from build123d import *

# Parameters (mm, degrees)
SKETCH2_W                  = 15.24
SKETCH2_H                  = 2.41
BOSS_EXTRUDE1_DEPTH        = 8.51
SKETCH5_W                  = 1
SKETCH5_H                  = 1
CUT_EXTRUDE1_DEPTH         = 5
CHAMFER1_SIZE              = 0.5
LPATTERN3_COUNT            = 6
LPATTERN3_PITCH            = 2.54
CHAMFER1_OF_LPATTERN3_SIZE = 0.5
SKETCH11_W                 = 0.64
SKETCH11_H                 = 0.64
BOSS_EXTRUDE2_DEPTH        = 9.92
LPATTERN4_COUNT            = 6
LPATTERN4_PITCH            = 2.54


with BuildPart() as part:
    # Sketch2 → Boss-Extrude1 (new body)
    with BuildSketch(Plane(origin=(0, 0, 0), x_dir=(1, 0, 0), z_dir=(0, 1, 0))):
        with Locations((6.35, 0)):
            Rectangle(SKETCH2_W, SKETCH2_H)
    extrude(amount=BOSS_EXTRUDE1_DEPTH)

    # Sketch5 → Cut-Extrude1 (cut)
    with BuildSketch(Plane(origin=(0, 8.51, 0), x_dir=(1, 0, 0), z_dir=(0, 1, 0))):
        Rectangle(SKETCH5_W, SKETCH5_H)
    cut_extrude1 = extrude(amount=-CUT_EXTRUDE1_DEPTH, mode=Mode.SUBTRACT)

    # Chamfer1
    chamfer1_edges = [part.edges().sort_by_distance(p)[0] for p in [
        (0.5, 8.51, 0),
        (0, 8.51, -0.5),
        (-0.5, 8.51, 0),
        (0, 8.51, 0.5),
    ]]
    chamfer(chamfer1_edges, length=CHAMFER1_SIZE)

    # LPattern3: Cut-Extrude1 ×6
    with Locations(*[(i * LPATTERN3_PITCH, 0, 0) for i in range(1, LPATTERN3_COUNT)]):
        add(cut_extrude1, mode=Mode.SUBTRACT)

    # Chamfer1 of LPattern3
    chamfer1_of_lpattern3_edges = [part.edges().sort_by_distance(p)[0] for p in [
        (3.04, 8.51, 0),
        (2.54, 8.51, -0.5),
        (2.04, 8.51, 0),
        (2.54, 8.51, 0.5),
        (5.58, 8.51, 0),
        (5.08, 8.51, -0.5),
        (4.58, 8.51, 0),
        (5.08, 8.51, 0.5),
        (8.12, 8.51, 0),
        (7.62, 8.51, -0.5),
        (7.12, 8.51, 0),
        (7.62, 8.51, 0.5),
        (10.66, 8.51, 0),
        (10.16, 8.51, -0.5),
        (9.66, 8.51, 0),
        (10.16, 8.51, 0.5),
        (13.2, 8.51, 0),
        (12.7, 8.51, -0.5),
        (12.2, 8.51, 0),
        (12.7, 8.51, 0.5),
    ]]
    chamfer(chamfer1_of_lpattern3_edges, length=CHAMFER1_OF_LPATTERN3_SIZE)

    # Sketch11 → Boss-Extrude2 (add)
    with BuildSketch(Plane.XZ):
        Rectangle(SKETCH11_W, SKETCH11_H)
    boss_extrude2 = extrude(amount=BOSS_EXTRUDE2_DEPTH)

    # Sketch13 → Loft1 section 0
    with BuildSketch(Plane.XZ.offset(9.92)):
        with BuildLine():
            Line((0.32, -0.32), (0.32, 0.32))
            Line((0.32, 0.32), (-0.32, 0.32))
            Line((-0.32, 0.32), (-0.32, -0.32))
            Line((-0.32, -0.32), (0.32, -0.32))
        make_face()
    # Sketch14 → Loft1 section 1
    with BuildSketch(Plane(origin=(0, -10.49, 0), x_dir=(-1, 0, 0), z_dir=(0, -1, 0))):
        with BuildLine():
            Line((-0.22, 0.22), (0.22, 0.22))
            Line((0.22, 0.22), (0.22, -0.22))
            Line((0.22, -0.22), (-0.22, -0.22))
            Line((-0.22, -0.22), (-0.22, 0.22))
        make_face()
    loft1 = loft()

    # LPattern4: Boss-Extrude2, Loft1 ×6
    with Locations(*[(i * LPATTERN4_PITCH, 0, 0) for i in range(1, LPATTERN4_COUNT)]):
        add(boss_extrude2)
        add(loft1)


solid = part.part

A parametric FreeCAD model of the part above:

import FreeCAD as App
import Part
import Sketcher

V = App.Vector


def edges_at(feature, points):
    """Names of the edges that pass closest to the given points."""
    edges = feature.Shape.Edges
    near = lambda p: min(range(len(edges)), key=lambda i: edges[i].distToShape(Part.Vertex(*p))[0])
    return sorted({f"Edge{near(p) + 1}" for p in points})


def add_polygon(sketch, points):
    """Adds a closed chain of lines whose ends are joined by coincident constraints."""
    first, n = sketch.GeometryCount, len(points)
    for a, b in zip(points, points[1:] + points[:1]):
        sketch.addGeometry(Part.LineSegment(App.Vector(*a, 0), App.Vector(*b, 0)), False)
    for i in range(n):
        sketch.addConstraint(Sketcher.Constraint("Coincident", first + i, 2, first + (i + 1) % n, 1))

doc = App.newDocument("Part")
body = doc.addObject("PartDesign::Body", "Body")

# Sketch on XZ plane
sketch1 = doc.addObject("Sketcher::SketchObject", "Sketch")
body.addObject(sketch1)
sketch1.AttachmentSupport = (doc.XZ_Plane, [""])
sketch1.MapMode = "FlatFace"
add_polygon(sketch1, [(-1.3, -1.2), (-1.3, 1.2), (14, 1.2), (14, -1.2)])  # lines 0-3
sketch1.addConstraint([
    Sketcher.Constraint("Vertical", 0),
    Sketcher.Constraint("Horizontal", 1),
    Sketcher.Constraint("Vertical", 2),
    Sketcher.Constraint("Horizontal", 3),
    Sketcher.Constraint("DistanceX", 1, 1, 1, 2, 15.24),
    Sketcher.Constraint("DistanceY", 0, 1, 0, 2, 2.41),
    Sketcher.Constraint("DistanceX", 0, 2, -1, 1, 1.27),
    Sketcher.Constraint("DistanceY", -1, 1, 0, 2, 1.205),
])
pad1 = doc.addObject("PartDesign::Pad", "Pad")
body.addObject(pad1)
pad1.Profile = sketch1
pad1.Length = 8.51
pad1.Reversed = True

# Sketch on XZ plane
sketch2 = doc.addObject("Sketcher::SketchObject", "Sketch001")
body.addObject(sketch2)
sketch2.AttachmentSupport = (doc.XZ_Plane, [""])
sketch2.MapMode = "FlatFace"
sketch2.AttachmentOffset = App.Placement(V(0, 0, -8.51), App.Rotation())
add_polygon(sketch2, [(-0.5, -0.5), (-0.5, 0.5), (0.5, 0.5), (0.5, -0.5)])  # lines 0-3
sketch2.addConstraint([
    Sketcher.Constraint("Vertical", 0),
    Sketcher.Constraint("Horizontal", 1),
    Sketcher.Constraint("Vertical", 2),
    Sketcher.Constraint("Horizontal", 3),
    Sketcher.Constraint("Symmetric", 0, 2, 2, 2, -1, 1),
    Sketcher.Constraint("Equal", 3, 0),
    Sketcher.Constraint("DistanceX", 1, 1, 1, 2, 1.0),
])
pocket1 = doc.addObject("PartDesign::Pocket", "Pocket")
body.addObject(pocket1)
pocket1.Profile = sketch2
pocket1.Length = 5
pocket1.Reversed = True
doc.recompute()

chamfer = doc.addObject("PartDesign::Chamfer", "Chamfer")
body.addObject(chamfer)
chamfer.Base = (pocket1, edges_at(pocket1, [
    (0.5, 8.51, 0),
    (0, 8.51, -0.5),
    (-0.5, 8.51, 0),
    (0, 8.51, 0.5),
]))
chamfer.Size = 0.5
doc.recompute()

linearpattern = doc.addObject("PartDesign::LinearPattern", "LinearPattern")
body.addObject(linearpattern)
linearpattern.Originals = [pocket1]
linearpattern.Direction = (doc.X_Axis, [""])
linearpattern.Mode = "offset"
linearpattern.Offset = 2.54
linearpattern.Occurrences = 6
body.Tip = linearpattern
doc.recompute()

chamfer2 = doc.addObject("PartDesign::Chamfer", "Chamfer001")
body.addObject(chamfer2)
chamfer2.Base = (linearpattern, edges_at(linearpattern, [
    (3.04, 8.51, 0),
    (2.54, 8.51, -0.5),
    (2.04, 8.51, 0),
    (2.54, 8.51, 0.5),
    (5.58, 8.51, 0),
    (5.08, 8.51, -0.5),
    (4.58, 8.51, 0),
    (5.08, 8.51, 0.5),
    (8.12, 8.51, 0),
    (7.62, 8.51, -0.5),
    (7.12, 8.51, 0),
    (7.62, 8.51, 0.5),
    (10.66, 8.51, 0),
    (10.16, 8.51, -0.5),
    (9.66, 8.51, 0),
    (10.16, 8.51, 0.5),
    (13.2, 8.51, 0),
    (12.7, 8.51, -0.5),
    (12.2, 8.51, 0),
    (12.7, 8.51, 0.5),
]))
chamfer2.Size = 0.5

# Sketch on XZ plane
sketch3 = doc.addObject("Sketcher::SketchObject", "Sketch002")
body.addObject(sketch3)
sketch3.AttachmentSupport = (doc.XZ_Plane, [""])
sketch3.MapMode = "FlatFace"
add_polygon(sketch3, [(-0.3, 0.3), (-0.3, -0.3), (0.3, -0.3), (0.3, 0.3)])  # lines 0-3
sketch3.addConstraint([
    Sketcher.Constraint("Vertical", 0),
    Sketcher.Constraint("Horizontal", 1),
    Sketcher.Constraint("Vertical", 2),
    Sketcher.Constraint("Horizontal", 3),
    Sketcher.Constraint("Symmetric", 0, 2, 2, 2, -1, 1),
    Sketcher.Constraint("Equal", 3, 0),
    Sketcher.Constraint("DistanceX", 1, 1, 1, 2, 0.64),
])
pad2 = doc.addObject("PartDesign::Pad", "Pad001")
body.addObject(pad2)
pad2.Profile = sketch3
pad2.Length = 9.92

# Sketch on XZ plane
sketch4 = doc.addObject("Sketcher::SketchObject", "Sketch003")
body.addObject(sketch4)
sketch4.AttachmentSupport = (doc.XZ_Plane, [""])
sketch4.MapMode = "FlatFace"
sketch4.AttachmentOffset = App.Placement(V(0, 0, 9.92), App.Rotation())
add_polygon(sketch4, [(0.3, -0.3), (0.3, 0.3), (-0.3, 0.3), (-0.3, -0.3)])  # lines 0-3
sketch4.addConstraint([
    Sketcher.Constraint("Vertical", 0),
    Sketcher.Constraint("Horizontal", 1),
    Sketcher.Constraint("Vertical", 2),
    Sketcher.Constraint("Horizontal", 3),
    Sketcher.Constraint("Symmetric", 0, 2, 2, 2, -1, 1),
    Sketcher.Constraint("Equal", 3, 0),
    Sketcher.Constraint("DistanceX", 1, 2, 1, 1, 0.64),
])

# Sketch on XZ plane
sketch5 = doc.addObject("Sketcher::SketchObject", "Sketch004")
body.addObject(sketch5)
sketch5.AttachmentSupport = (doc.XZ_Plane, [""])
sketch5.MapMode = "FlatFace"
sketch5.AttachmentOffset = App.Placement(V(0, 0, 10.49), App.Rotation())
add_polygon(sketch5, [(-0.22, -0.22), (0.22, -0.22), (0.22, 0.22), (-0.22, 0.22)])  # lines 0-3
sketch5.addConstraint([
    Sketcher.Constraint("Horizontal", 0),
    Sketcher.Constraint("Vertical", 1),
    Sketcher.Constraint("Horizontal", 2),
    Sketcher.Constraint("Vertical", 3),
    Sketcher.Constraint("Symmetric", 0, 2, 2, 2, -1, 1),
    Sketcher.Constraint("Equal", 2, 1),
    Sketcher.Constraint("DistanceX", 0, 1, 0, 2, 0.44),
])

additiveloft = doc.addObject("PartDesign::AdditiveLoft", "AdditiveLoft")
body.addObject(additiveloft)
additiveloft.Profile = sketch4
additiveloft.Sections = [sketch5]
doc.recompute()

linearpattern2 = doc.addObject("PartDesign::LinearPattern", "LinearPattern001")
body.addObject(linearpattern2)
linearpattern2.Originals = [pad2, additiveloft]
linearpattern2.Direction = (doc.X_Axis, [""])
linearpattern2.Mode = "offset"
linearpattern2.Offset = 2.54
linearpattern2.Occurrences = 6
body.Tip = linearpattern2

doc.recompute()
